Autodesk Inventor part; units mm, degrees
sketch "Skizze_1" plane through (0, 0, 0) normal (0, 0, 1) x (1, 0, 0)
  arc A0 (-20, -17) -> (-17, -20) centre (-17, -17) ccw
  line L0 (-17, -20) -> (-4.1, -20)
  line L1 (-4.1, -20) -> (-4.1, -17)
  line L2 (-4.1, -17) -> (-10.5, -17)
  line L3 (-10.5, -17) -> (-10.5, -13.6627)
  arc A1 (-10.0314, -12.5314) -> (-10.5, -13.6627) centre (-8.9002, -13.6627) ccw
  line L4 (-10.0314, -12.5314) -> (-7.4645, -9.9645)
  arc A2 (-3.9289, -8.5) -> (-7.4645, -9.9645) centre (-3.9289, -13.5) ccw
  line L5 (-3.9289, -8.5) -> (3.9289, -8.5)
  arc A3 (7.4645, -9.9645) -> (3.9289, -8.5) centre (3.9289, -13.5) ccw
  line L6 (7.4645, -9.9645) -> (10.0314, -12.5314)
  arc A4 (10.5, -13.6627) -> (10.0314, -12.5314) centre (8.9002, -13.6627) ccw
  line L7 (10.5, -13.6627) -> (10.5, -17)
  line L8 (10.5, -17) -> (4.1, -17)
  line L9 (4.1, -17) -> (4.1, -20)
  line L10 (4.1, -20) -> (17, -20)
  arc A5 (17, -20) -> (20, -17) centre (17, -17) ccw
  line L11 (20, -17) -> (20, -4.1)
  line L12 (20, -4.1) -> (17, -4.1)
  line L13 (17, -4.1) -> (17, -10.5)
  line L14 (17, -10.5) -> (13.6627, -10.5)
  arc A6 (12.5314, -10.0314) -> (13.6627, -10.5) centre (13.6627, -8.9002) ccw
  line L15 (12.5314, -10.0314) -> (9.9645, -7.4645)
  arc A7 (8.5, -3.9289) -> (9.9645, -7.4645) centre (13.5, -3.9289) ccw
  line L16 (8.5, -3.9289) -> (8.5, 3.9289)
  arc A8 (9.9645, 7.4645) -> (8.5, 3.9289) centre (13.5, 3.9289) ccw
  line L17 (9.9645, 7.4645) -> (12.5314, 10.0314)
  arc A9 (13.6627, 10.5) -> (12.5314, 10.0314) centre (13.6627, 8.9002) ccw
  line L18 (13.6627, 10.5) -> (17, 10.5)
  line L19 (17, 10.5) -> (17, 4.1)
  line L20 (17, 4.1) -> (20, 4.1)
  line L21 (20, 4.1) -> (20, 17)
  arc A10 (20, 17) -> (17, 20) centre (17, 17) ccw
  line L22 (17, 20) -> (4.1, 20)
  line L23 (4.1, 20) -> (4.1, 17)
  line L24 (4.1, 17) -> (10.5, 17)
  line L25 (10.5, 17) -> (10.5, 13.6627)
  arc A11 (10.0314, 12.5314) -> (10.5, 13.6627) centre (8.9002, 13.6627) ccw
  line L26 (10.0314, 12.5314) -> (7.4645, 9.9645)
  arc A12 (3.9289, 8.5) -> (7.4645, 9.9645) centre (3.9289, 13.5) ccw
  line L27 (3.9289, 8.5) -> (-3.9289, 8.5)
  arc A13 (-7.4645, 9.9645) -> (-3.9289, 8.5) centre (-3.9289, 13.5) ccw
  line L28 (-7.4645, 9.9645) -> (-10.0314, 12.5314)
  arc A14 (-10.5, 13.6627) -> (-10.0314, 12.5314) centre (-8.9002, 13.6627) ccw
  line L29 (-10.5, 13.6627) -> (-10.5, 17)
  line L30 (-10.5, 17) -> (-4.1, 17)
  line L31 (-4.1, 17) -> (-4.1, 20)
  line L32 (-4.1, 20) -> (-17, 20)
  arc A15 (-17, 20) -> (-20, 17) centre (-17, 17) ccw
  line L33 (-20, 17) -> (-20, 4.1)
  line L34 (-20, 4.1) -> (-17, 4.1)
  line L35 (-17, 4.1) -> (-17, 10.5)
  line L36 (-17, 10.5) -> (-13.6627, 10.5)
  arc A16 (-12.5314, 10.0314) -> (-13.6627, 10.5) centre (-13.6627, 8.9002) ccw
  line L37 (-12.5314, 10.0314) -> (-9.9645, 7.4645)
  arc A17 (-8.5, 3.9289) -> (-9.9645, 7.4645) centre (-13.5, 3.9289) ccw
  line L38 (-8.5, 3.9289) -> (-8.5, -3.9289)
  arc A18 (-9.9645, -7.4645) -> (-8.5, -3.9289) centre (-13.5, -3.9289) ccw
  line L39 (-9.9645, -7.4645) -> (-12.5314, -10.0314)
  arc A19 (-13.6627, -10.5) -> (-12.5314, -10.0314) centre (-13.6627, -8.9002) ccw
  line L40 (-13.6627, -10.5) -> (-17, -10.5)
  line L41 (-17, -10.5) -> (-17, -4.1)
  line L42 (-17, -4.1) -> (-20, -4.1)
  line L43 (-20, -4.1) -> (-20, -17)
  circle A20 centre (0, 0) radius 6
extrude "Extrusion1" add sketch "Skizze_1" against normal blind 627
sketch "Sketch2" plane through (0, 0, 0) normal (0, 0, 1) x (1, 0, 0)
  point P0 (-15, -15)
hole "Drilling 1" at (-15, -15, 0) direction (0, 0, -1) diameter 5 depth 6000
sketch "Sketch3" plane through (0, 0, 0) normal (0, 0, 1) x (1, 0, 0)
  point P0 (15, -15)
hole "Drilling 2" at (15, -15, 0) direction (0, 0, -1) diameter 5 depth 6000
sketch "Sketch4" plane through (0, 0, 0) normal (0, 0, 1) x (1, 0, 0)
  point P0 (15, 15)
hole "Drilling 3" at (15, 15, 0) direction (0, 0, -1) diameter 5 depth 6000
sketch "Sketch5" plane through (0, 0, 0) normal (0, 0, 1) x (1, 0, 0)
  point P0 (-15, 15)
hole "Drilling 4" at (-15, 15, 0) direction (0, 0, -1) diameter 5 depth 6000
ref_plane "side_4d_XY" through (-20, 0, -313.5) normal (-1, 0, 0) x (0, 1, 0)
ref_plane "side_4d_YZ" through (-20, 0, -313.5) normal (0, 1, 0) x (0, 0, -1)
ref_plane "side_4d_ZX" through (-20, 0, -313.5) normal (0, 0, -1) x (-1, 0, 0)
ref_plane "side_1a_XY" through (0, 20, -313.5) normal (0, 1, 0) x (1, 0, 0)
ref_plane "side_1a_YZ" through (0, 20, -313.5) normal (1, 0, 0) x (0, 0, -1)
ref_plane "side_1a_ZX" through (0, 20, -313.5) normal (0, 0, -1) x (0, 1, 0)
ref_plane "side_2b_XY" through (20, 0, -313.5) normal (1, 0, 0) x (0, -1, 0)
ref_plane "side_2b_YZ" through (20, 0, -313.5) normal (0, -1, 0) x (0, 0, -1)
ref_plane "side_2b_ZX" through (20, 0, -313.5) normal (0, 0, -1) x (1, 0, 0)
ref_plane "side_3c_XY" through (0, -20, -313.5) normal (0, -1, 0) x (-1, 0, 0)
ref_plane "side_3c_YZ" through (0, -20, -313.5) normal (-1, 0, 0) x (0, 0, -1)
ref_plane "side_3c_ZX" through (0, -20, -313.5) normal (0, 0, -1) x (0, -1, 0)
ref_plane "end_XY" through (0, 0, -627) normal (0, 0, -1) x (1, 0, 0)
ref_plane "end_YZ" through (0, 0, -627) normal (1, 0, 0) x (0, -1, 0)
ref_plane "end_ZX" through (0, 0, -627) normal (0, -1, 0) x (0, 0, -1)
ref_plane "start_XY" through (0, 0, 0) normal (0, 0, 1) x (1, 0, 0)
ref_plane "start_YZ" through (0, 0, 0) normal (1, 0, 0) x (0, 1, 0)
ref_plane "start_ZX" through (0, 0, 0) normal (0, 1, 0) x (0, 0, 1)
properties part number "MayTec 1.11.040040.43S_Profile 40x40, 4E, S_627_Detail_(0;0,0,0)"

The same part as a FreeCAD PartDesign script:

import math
import FreeCAD as App
import Part
import Sketcher

V = App.Vector

doc = App.newDocument("Part")
body = doc.addObject("PartDesign::Body", "Body")

# Sketch on XY plane
sketch1 = body.newObject("Sketcher::SketchObject", "Sketch")
sketch1.AttachmentSupport = (doc.getObject("XY_Plane"), [""])
sketch1.MapMode = "FlatFace"
sketch1.addGeometry([
    Part.LineSegment(V(-20, -4.1, 0), V(-20, -17, 0)),  # 0
    Part.ArcOfCircle(Part.Circle(V(-17, -17, 0), V(0, 0, 1), 3), math.radians(180), math.radians(270)),  # 1
    Part.LineSegment(V(-17, -20, 0), V(-4.1, -20, 0)),  # 2
    Part.LineSegment(V(-4.1, -20, 0), V(-4.1, -17, 0)),  # 3
    Part.LineSegment(V(-4.1, -17, 0), V(-10.5, -17, 0)),  # 4
    Part.LineSegment(V(-10.5, -17, 0), V(-10.5, -13.7, 0)),  # 5
    Part.ArcOfCircle(Part.Circle(V(-8.9, -13.7, 0), V(0, 0, 1), 1.6), math.radians(135), math.radians(180)),  # 6
    Part.LineSegment(V(-10, -12.5, 0), V(-7.5, -10, 0)),  # 7
    Part.ArcOfCircle(Part.Circle(V(-3.9, -13.5, 0), V(0, 0, 1), 5), math.radians(90), math.radians(135)),  # 8
    Part.LineSegment(V(-3.9, -8.5, 0), V(3.9, -8.5, 0)),  # 9
    Part.ArcOfCircle(Part.Circle(V(3.9, -13.5, 0), V(0, 0, 1), 5), math.radians(45), math.radians(90)),  # 10
    Part.LineSegment(V(7.5, -10, 0), V(10, -12.5, 0)),  # 11
    Part.ArcOfCircle(Part.Circle(V(8.9, -13.7, 0), V(0, 0, 1), 1.6), math.radians(0), math.radians(45)),  # 12
    Part.LineSegment(V(10.5, -13.7, 0), V(10.5, -17, 0)),  # 13
    Part.LineSegment(V(10.5, -17, 0), V(4.1, -17, 0)),  # 14
    Part.LineSegment(V(4.1, -17, 0), V(4.1, -20, 0)),  # 15
    Part.LineSegment(V(4.1, -20, 0), V(17, -20, 0)),  # 16
    Part.ArcOfCircle(Part.Circle(V(17, -17, 0), V(0, 0, 1), 3), math.radians(-90), math.radians(0)),  # 17
    Part.LineSegment(V(20, -17, 0), V(20, -4.1, 0)),  # 18
    Part.LineSegment(V(20, -4.1, 0), V(17, -4.1, 0)),  # 19
    Part.LineSegment(V(17, -4.1, 0), V(17, -10.5, 0)),  # 20
    Part.LineSegment(V(17, -10.5, 0), V(13.7, -10.5, 0)),  # 21
    Part.ArcOfCircle(Part.Circle(V(13.7, -8.9, 0), V(0, 0, 1), 1.6), math.radians(-135), math.radians(-90)),  # 22
    Part.LineSegment(V(12.5, -10, 0), V(10, -7.5, 0)),  # 23
    Part.ArcOfCircle(Part.Circle(V(13.5, -3.9, 0), V(0, 0, 1), 5), math.radians(180), math.radians(225)),  # 24
    Part.LineSegment(V(8.5, -3.9, 0), V(8.5, 3.9, 0)),  # 25
    Part.ArcOfCircle(Part.Circle(V(13.5, 3.9, 0), V(0, 0, 1), 5), math.radians(135), math.radians(180)),  # 26
    Part.LineSegment(V(10, 7.5, 0), V(12.5, 10, 0)),  # 27
    Part.ArcOfCircle(Part.Circle(V(13.7, 8.9, 0), V(0, 0, 1), 1.6), math.radians(90), math.radians(135)),  # 28
    Part.LineSegment(V(13.7, 10.5, 0), V(17, 10.5, 0)),  # 29
    Part.LineSegment(V(17, 10.5, 0), V(17, 4.1, 0)),  # 30
    Part.LineSegment(V(17, 4.1, 0), V(20, 4.1, 0)),  # 31
    Part.LineSegment(V(20, 4.1, 0), V(20, 17, 0)),  # 32
    Part.ArcOfCircle(Part.Circle(V(17, 17, 0), V(0, 0, 1), 3), math.radians(0), math.radians(90)),  # 33
    Part.LineSegment(V(17, 20, 0), V(4.1, 20, 0)),  # 34
    Part.LineSegment(V(4.1, 20, 0), V(4.1, 17, 0)),  # 35
    Part.LineSegment(V(4.1, 17, 0), V(10.5, 17, 0)),  # 36
    Part.LineSegment(V(10.5, 17, 0), V(10.5, 13.7, 0)),  # 37
    Part.ArcOfCircle(Part.Circle(V(8.9, 13.7, 0), V(0, 0, 1), 1.6), math.radians(-45), math.radians(0)),  # 38
    Part.LineSegment(V(10, 12.5, 0), V(7.5, 10, 0)),  # 39
    Part.ArcOfCircle(Part.Circle(V(3.9, 13.5, 0), V(0, 0, 1), 5), math.radians(-90), math.radians(-45)),  # 40
    Part.LineSegment(V(3.9, 8.5, 0), V(-3.9, 8.5, 0)),  # 41
    Part.ArcOfCircle(Part.Circle(V(-3.9, 13.5, 0), V(0, 0, 1), 5), math.radians(-135), math.radians(-90)),  # 42
    Part.LineSegment(V(-7.5, 10, 0), V(-10, 12.5, 0)),  # 43
    Part.ArcOfCircle(Part.Circle(V(-8.9, 13.7, 0), V(0, 0, 1), 1.6), math.radians(180), math.radians(225)),  # 44
    Part.LineSegment(V(-10.5, 13.7, 0), V(-10.5, 17, 0)),  # 45
    Part.LineSegment(V(-10.5, 17, 0), V(-4.1, 17, 0)),  # 46
    Part.LineSegment(V(-4.1, 17, 0), V(-4.1, 20, 0)),  # 47
    Part.LineSegment(V(-4.1, 20, 0), V(-17, 20, 0)),  # 48
    Part.ArcOfCircle(Part.Circle(V(-17, 17, 0), V(0, 0, 1), 3), math.radians(90), math.radians(180)),  # 49
    Part.LineSegment(V(-20, 17, 0), V(-20, 4.1, 0)),  # 50
    Part.LineSegment(V(-20, 4.1, 0), V(-17, 4.1, 0)),  # 51
    Part.LineSegment(V(-17, 4.1, 0), V(-17, 10.5, 0)),  # 52
    Part.LineSegment(V(-17, 10.5, 0), V(-13.7, 10.5, 0)),  # 53
    Part.ArcOfCircle(Part.Circle(V(-13.7, 8.9, 0), V(0, 0, 1), 1.6), math.radians(45), math.radians(90)),  # 54
    Part.LineSegment(V(-12.5, 10, 0), V(-10, 7.5, 0)),  # 55
    Part.ArcOfCircle(Part.Circle(V(-13.5, 3.9, 0), V(0, 0, 1), 5), math.radians(0), math.radians(45)),  # 56
    Part.LineSegment(V(-8.5, 3.9, 0), V(-8.5, -3.9, 0)),  # 57
    Part.ArcOfCircle(Part.Circle(V(-13.5, -3.9, 0), V(0, 0, 1), 5), math.radians(-45), math.radians(0)),  # 58
    Part.LineSegment(V(-10, -7.5, 0), V(-12.5, -10, 0)),  # 59
    Part.ArcOfCircle(Part.Circle(V(-13.7, -8.9, 0), V(0, 0, 1), 1.6), math.radians(-90), math.radians(-45)),  # 60
    Part.LineSegment(V(-13.7, -10.5, 0), V(-17, -10.5, 0)),  # 61
    Part.LineSegment(V(-17, -10.5, 0), V(-17, -4.1, 0)),  # 62
    Part.LineSegment(V(-17, -4.1, 0), V(-20, -4.1, 0)),  # 63
    Part.Circle(V(0, 0, 0), V(0, 0, 1), 6),  # 64
], False)
sketch1.addConstraint([
    Sketcher.Constraint("Tangent", 0, 2, 1, 1),
    Sketcher.Constraint("Tangent", 1, 2, 2, 1),
    Sketcher.Constraint("Coincident", 2, 2, 3, 1),
    Sketcher.Constraint("Coincident", 3, 2, 4, 1),
    Sketcher.Constraint("Coincident", 4, 2, 5, 1),
    Sketcher.Constraint("Tangent", 5, 2, 6, 2),
    Sketcher.Constraint("Tangent", 6, 1, 7, 1),
    Sketcher.Constraint("Tangent", 7, 2, 8, 2),
    Sketcher.Constraint("Tangent", 8, 1, 9, 1),
    Sketcher.Constraint("Tangent", 9, 2, 10, 2),
    Sketcher.Constraint("Tangent", 10, 1, 11, 1),
    Sketcher.Constraint("Tangent", 11, 2, 12, 2),
    Sketcher.Constraint("Tangent", 12, 1, 13, 1),
    Sketcher.Constraint("Coincident", 13, 2, 14, 1),
    Sketcher.Constraint("Coincident", 14, 2, 15, 1),
    Sketcher.Constraint("Coincident", 15, 2, 16, 1),
    Sketcher.Constraint("Tangent", 16, 2, 17, 1),
    Sketcher.Constraint("Tangent", 17, 2, 18, 1),
    Sketcher.Constraint("Coincident", 18, 2, 19, 1),
    Sketcher.Constraint("Coincident", 19, 2, 20, 1),
    Sketcher.Constraint("Coincident", 20, 2, 21, 1),
    Sketcher.Constraint("Tangent", 21, 2, 22, 2),
    Sketcher.Constraint("Tangent", 22, 1, 23, 1),
    Sketcher.Constraint("Tangent", 23, 2, 24, 2),
    Sketcher.Constraint("Tangent", 24, 1, 25, 1),
    Sketcher.Constraint("Tangent", 25, 2, 26, 2),
    Sketcher.Constraint("Tangent", 26, 1, 27, 1),
    Sketcher.Constraint("Tangent", 27, 2, 28, 2),
    Sketcher.Constraint("Tangent", 28, 1, 29, 1),
    Sketcher.Constraint("Coincident", 29, 2, 30, 1),
    Sketcher.Constraint("Coincident", 30, 2, 31, 1),
    Sketcher.Constraint("Coincident", 31, 2, 32, 1),
    Sketcher.Constraint("Tangent", 32, 2, 33, 1),
    Sketcher.Constraint("Tangent", 33, 2, 34, 1),
    Sketcher.Constraint("Coincident", 34, 2, 35, 1),
    Sketcher.Constraint("Coincident", 35, 2, 36, 1),
    Sketcher.Constraint("Coincident", 36, 2, 37, 1),
    Sketcher.Constraint("Tangent", 37, 2, 38, 2),
    Sketcher.Constraint("Tangent", 38, 1, 39, 1),
    Sketcher.Constraint("Tangent", 39, 2, 40, 2),
    Sketcher.Constraint("Tangent", 40, 1, 41, 1),
    Sketcher.Constraint("Tangent", 41, 2, 42, 2),
    Sketcher.Constraint("Tangent", 42, 1, 43, 1),
    Sketcher.Constraint("Tangent", 43, 2, 44, 2),
    Sketcher.Constraint("Tangent", 44, 1, 45, 1),
    Sketcher.Constraint("Coincident", 45, 2, 46, 1),
    Sketcher.Constraint("Coincident", 46, 2, 47, 1),
    Sketcher.Constraint("Coincident", 47, 2, 48, 1),
    Sketcher.Constraint("Tangent", 48, 2, 49, 1),
    Sketcher.Constraint("Tangent", 49, 2, 50, 1),
    Sketcher.Constraint("Coincident", 50, 2, 51, 1),
    Sketcher.Constraint("Coincident", 51, 2, 52, 1),
    Sketcher.Constraint("Coincident", 52, 2, 53, 1),
    Sketcher.Constraint("Tangent", 53, 2, 54, 2),
    Sketcher.Constraint("Tangent", 54, 1, 55, 1),
    Sketcher.Constraint("Tangent", 55, 2, 56, 2),
    Sketcher.Constraint("Tangent", 56, 1, 57, 1),
    Sketcher.Constraint("Tangent", 57, 2, 58, 2),
    Sketcher.Constraint("Tangent", 58, 1, 59, 1),
    Sketcher.Constraint("Tangent", 59, 2, 60, 2),
    Sketcher.Constraint("Tangent", 60, 1, 61, 1),
    Sketcher.Constraint("Coincident", 61, 2, 62, 1),
    Sketcher.Constraint("Coincident", 62, 2, 63, 1),
    Sketcher.Constraint("Coincident", 63, 2, 0, 1),
    Sketcher.Constraint("Vertical", 0),
    Sketcher.Constraint("Horizontal", 2),
    Sketcher.Constraint("Vertical", 3),
    Sketcher.Constraint("Horizontal", 4),
    Sketcher.Constraint("Vertical", 5),
    Sketcher.Constraint("Horizontal", 9),
    Sketcher.Constraint("Vertical", 13),
    Sketcher.Constraint("Horizontal", 14),
    Sketcher.Constraint("Vertical", 15),
    Sketcher.Constraint("Horizontal", 16),
    Sketcher.Constraint("Vertical", 18),
    Sketcher.Constraint("Horizontal", 19),
    Sketcher.Constraint("Vertical", 20),
    Sketcher.Constraint("Horizontal", 21),
    Sketcher.Constraint("Vertical", 25),
    Sketcher.Constraint("Horizontal", 29),
    Sketcher.Constraint("Vertical", 30),
    Sketcher.Constraint("Horizontal", 31),
    Sketcher.Constraint("Vertical", 32),
    Sketcher.Constraint("Horizontal", 34),
    Sketcher.Constraint("Vertical", 35),
    Sketcher.Constraint("Horizontal", 36),
    Sketcher.Constraint("Vertical", 37),
    Sketcher.Constraint("Horizontal", 41),
    Sketcher.Constraint("Vertical", 45),
    Sketcher.Constraint("Horizontal", 46),
    Sketcher.Constraint("Vertical", 47),
    Sketcher.Constraint("Horizontal", 48),
    Sketcher.Constraint("Vertical", 50),
    Sketcher.Constraint("Horizontal", 51),
    Sketcher.Constraint("Vertical", 52),
    Sketcher.Constraint("Horizontal", 53),
    Sketcher.Constraint("Vertical", 57),
    Sketcher.Constraint("Horizontal", 61),
    Sketcher.Constraint("Vertical", 62),
    Sketcher.Constraint("Horizontal", 63),
    Sketcher.Constraint("Coincident", 64, 3, -1, 1),
    Sketcher.Constraint("Equal", 8, 10),
    Sketcher.Constraint("Equal", 6, 12),
    Sketcher.Constraint("Equal", 1, 17),
    Sketcher.Constraint("Equal", 12, 22),
    Sketcher.Constraint("Equal", 10, 24),
    Sketcher.Constraint("Equal", 24, 26),
    Sketcher.Constraint("Equal", 22, 28),
    Sketcher.Constraint("Equal", 17, 33),
    Sketcher.Constraint("Equal", 28, 38),
    Sketcher.Constraint("Equal", 26, 40),
    Sketcher.Constraint("Equal", 40, 42),
    Sketcher.Constraint("Equal", 38, 44),
    Sketcher.Constraint("Equal", 33, 49),
    Sketcher.Constraint("Equal", 44, 54),
    Sketcher.Constraint("Equal", 42, 56),
    Sketcher.Constraint("Equal", 56, 58),
    Sketcher.Constraint("Equal", 54, 60),
    Sketcher.Constraint("Symmetric", 1, 3, 33, 3, -1, 1),
    Sketcher.Constraint("Symmetric", 6, 3, 38, 3, -1, 1),
    Sketcher.Constraint("Symmetric", 8, 3, 40, 3, -1, 1),
    Sketcher.Constraint("Symmetric", 12, 3, 44, 3, -1, 1),
    Sketcher.Constraint("Symmetric", 17, 3, 49, 3, -1, 1),
    Sketcher.Constraint("Symmetric", 22, 3, 54, 3, -1, 1),
    Sketcher.Constraint("Symmetric", 24, 3, 56, 3, -1, 1),
    Sketcher.Constraint("Symmetric", 28, 3, 60, 3, -1, 1),
    Sketcher.Constraint("Symmetric", 3, 2, 35, 2, -1, 1),
    Sketcher.Constraint("Symmetric", 14, 2, 46, 2, -1, 1),
    Sketcher.Constraint("Symmetric", 19, 2, 51, 2, -1, 1),
    Sketcher.Constraint("Symmetric", 30, 2, 62, 2, -1, 1),
    Sketcher.Constraint("Symmetric", 6, 3, 12, 3, -2),
    Sketcher.Constraint("Symmetric", 1, 3, 17, 3, -2),
    Sketcher.Constraint("Symmetric", 28, 3, 54, 3, -2),
    Sketcher.Constraint("Symmetric", 3, 2, 14, 2, -2),
    Sketcher.Constraint("Symmetric", 30, 2, 51, 2, -2),
    Sketcher.Constraint("Perpendicular", 7, 11),
    Sketcher.Constraint("Parallel", 11, 23),
    Sketcher.Constraint("Perpendicular", 23, 27),
    Sketcher.Constraint("Perpendicular", 39, 43),
    Sketcher.Constraint("Perpendicular", 55, 59),
    Sketcher.Constraint("Horizontal", 26, 3, 56, 3),
    Sketcher.Constraint("Horizontal", 0, 2, 3, 2),
    Sketcher.Constraint("Vertical", 16, 2, 19, 2),
    Sketcher.Constraint("Equal", 48, 0),
    Sketcher.Constraint("Equal", 61, 5),
    Sketcher.Constraint("Equal", 46, 20),
    Sketcher.Constraint("Equal", 41, 25),
    Sketcher.Constraint("Equal", 11, 23),
    Sketcher.Constraint("Diameter", 64, 12.0),
    Sketcher.Constraint("Radius", 1, 3.0),
    Sketcher.Constraint("Radius", 8, 5.0),
    Sketcher.Constraint("DistanceX", 2, 1, 2, 2, 12.9),
    Sketcher.Constraint("DistanceX", 4, 2, 4, 1, 6.4),
    Sketcher.Constraint("DistanceX", 1, 3, -1, 1, 17.0),
    Sketcher.Constraint("DistanceY", 8, 3, -1, 1, 13.5),
    Sketcher.Constraint("Radius", 6, 1.5998),
    Sketcher.Constraint("DistanceX", 9, 1, 9, 2, 7.8578),
])
pad1 = body.newObject("PartDesign::Pad", "Pad")
pad1.Profile = sketch1
pad1.Length = 627
pad1.Reversed = True

# Sketch on XY plane
sketch2 = body.newObject("Sketcher::SketchObject", "Sketch001")
sketch2.AttachmentSupport = (doc.getObject("XY_Plane"), [""])
sketch2.MapMode = "FlatFace"
sketch2.addGeometry(Part.Circle(V(-15, -15, 0), V(0, 0, 1), 2.5), False)
sketch2.addConstraint([
    Sketcher.Constraint("Diameter", 0, 5.0),
    Sketcher.Constraint("DistanceX", 0, 3, -1, 1, 15.0),
    Sketcher.Constraint("DistanceY", 0, 3, -1, 1, 15.0),
])
doc.recompute()
hole = body.newObject("PartDesign::Hole", "Hole")
hole.Profile = sketch2
hole.ThreadType = "None"
hole.Diameter = 5
hole.DepthType = "Dimension"
hole.Depth = 6000
hole.DrillPoint = "Flat"

# Sketch on XY plane
sketch3 = body.newObject("Sketcher::SketchObject", "Sketch002")
sketch3.AttachmentSupport = (doc.getObject("XY_Plane"), [""])
sketch3.MapMode = "FlatFace"
sketch3.addGeometry(Part.Circle(V(15, -15, 0), V(0, 0, 1), 2.5), False)
sketch3.addConstraint([
    Sketcher.Constraint("Diameter", 0, 5.0),
    Sketcher.Constraint("DistanceX", -1, 1, 0, 3, 15.0),
    Sketcher.Constraint("DistanceY", 0, 3, -1, 1, 15.0),
])
doc.recompute()
hole2 = body.newObject("PartDesign::Hole", "Hole001")
hole2.Profile = sketch3
hole2.ThreadType = "None"
hole2.Diameter = 5
hole2.DepthType = "Dimension"
hole2.Depth = 6000
hole2.DrillPoint = "Flat"

# Sketch on XY plane
sketch4 = body.newObject("Sketcher::SketchObject", "Sketch003")
sketch4.AttachmentSupport = (doc.getObject("XY_Plane"), [""])
sketch4.MapMode = "FlatFace"
sketch4.addGeometry(Part.Circle(V(15, 15, 0), V(0, 0, 1), 2.5), False)
sketch4.addConstraint([
    Sketcher.Constraint("Diameter", 0, 5.0),
    Sketcher.Constraint("DistanceX", -1, 1, 0, 3, 15.0),
    Sketcher.Constraint("DistanceY", -1, 1, 0, 3, 15.0),
])
doc.recompute()
hole3 = body.newObject("PartDesign::Hole", "Hole002")
hole3.Profile = sketch4
hole3.ThreadType = "None"
hole3.Diameter = 5
hole3.DepthType = "Dimension"
hole3.Depth = 6000
hole3.DrillPoint = "Flat"

# Sketch on XY plane
sketch5 = body.newObject("Sketcher::SketchObject", "Sketch004")
sketch5.AttachmentSupport = (doc.getObject("XY_Plane"), [""])
sketch5.MapMode = "FlatFace"
sketch5.addGeometry(Part.Circle(V(-15, 15, 0), V(0, 0, 1), 2.5), False)
sketch5.addConstraint([
    Sketcher.Constraint("Diameter", 0, 5.0),
    Sketcher.Constraint("DistanceX", 0, 3, -1, 1, 15.0),
    Sketcher.Constraint("DistanceY", -1, 1, 0, 3, 15.0),
])
doc.recompute()
hole4 = body.newObject("PartDesign::Hole", "Hole003")
hole4.Profile = sketch5
hole4.ThreadType = "None"
hole4.Diameter = 5
hole4.DepthType = "Dimension"
hole4.Depth = 6000
hole4.DrillPoint = "Flat"

doc.recompute()
